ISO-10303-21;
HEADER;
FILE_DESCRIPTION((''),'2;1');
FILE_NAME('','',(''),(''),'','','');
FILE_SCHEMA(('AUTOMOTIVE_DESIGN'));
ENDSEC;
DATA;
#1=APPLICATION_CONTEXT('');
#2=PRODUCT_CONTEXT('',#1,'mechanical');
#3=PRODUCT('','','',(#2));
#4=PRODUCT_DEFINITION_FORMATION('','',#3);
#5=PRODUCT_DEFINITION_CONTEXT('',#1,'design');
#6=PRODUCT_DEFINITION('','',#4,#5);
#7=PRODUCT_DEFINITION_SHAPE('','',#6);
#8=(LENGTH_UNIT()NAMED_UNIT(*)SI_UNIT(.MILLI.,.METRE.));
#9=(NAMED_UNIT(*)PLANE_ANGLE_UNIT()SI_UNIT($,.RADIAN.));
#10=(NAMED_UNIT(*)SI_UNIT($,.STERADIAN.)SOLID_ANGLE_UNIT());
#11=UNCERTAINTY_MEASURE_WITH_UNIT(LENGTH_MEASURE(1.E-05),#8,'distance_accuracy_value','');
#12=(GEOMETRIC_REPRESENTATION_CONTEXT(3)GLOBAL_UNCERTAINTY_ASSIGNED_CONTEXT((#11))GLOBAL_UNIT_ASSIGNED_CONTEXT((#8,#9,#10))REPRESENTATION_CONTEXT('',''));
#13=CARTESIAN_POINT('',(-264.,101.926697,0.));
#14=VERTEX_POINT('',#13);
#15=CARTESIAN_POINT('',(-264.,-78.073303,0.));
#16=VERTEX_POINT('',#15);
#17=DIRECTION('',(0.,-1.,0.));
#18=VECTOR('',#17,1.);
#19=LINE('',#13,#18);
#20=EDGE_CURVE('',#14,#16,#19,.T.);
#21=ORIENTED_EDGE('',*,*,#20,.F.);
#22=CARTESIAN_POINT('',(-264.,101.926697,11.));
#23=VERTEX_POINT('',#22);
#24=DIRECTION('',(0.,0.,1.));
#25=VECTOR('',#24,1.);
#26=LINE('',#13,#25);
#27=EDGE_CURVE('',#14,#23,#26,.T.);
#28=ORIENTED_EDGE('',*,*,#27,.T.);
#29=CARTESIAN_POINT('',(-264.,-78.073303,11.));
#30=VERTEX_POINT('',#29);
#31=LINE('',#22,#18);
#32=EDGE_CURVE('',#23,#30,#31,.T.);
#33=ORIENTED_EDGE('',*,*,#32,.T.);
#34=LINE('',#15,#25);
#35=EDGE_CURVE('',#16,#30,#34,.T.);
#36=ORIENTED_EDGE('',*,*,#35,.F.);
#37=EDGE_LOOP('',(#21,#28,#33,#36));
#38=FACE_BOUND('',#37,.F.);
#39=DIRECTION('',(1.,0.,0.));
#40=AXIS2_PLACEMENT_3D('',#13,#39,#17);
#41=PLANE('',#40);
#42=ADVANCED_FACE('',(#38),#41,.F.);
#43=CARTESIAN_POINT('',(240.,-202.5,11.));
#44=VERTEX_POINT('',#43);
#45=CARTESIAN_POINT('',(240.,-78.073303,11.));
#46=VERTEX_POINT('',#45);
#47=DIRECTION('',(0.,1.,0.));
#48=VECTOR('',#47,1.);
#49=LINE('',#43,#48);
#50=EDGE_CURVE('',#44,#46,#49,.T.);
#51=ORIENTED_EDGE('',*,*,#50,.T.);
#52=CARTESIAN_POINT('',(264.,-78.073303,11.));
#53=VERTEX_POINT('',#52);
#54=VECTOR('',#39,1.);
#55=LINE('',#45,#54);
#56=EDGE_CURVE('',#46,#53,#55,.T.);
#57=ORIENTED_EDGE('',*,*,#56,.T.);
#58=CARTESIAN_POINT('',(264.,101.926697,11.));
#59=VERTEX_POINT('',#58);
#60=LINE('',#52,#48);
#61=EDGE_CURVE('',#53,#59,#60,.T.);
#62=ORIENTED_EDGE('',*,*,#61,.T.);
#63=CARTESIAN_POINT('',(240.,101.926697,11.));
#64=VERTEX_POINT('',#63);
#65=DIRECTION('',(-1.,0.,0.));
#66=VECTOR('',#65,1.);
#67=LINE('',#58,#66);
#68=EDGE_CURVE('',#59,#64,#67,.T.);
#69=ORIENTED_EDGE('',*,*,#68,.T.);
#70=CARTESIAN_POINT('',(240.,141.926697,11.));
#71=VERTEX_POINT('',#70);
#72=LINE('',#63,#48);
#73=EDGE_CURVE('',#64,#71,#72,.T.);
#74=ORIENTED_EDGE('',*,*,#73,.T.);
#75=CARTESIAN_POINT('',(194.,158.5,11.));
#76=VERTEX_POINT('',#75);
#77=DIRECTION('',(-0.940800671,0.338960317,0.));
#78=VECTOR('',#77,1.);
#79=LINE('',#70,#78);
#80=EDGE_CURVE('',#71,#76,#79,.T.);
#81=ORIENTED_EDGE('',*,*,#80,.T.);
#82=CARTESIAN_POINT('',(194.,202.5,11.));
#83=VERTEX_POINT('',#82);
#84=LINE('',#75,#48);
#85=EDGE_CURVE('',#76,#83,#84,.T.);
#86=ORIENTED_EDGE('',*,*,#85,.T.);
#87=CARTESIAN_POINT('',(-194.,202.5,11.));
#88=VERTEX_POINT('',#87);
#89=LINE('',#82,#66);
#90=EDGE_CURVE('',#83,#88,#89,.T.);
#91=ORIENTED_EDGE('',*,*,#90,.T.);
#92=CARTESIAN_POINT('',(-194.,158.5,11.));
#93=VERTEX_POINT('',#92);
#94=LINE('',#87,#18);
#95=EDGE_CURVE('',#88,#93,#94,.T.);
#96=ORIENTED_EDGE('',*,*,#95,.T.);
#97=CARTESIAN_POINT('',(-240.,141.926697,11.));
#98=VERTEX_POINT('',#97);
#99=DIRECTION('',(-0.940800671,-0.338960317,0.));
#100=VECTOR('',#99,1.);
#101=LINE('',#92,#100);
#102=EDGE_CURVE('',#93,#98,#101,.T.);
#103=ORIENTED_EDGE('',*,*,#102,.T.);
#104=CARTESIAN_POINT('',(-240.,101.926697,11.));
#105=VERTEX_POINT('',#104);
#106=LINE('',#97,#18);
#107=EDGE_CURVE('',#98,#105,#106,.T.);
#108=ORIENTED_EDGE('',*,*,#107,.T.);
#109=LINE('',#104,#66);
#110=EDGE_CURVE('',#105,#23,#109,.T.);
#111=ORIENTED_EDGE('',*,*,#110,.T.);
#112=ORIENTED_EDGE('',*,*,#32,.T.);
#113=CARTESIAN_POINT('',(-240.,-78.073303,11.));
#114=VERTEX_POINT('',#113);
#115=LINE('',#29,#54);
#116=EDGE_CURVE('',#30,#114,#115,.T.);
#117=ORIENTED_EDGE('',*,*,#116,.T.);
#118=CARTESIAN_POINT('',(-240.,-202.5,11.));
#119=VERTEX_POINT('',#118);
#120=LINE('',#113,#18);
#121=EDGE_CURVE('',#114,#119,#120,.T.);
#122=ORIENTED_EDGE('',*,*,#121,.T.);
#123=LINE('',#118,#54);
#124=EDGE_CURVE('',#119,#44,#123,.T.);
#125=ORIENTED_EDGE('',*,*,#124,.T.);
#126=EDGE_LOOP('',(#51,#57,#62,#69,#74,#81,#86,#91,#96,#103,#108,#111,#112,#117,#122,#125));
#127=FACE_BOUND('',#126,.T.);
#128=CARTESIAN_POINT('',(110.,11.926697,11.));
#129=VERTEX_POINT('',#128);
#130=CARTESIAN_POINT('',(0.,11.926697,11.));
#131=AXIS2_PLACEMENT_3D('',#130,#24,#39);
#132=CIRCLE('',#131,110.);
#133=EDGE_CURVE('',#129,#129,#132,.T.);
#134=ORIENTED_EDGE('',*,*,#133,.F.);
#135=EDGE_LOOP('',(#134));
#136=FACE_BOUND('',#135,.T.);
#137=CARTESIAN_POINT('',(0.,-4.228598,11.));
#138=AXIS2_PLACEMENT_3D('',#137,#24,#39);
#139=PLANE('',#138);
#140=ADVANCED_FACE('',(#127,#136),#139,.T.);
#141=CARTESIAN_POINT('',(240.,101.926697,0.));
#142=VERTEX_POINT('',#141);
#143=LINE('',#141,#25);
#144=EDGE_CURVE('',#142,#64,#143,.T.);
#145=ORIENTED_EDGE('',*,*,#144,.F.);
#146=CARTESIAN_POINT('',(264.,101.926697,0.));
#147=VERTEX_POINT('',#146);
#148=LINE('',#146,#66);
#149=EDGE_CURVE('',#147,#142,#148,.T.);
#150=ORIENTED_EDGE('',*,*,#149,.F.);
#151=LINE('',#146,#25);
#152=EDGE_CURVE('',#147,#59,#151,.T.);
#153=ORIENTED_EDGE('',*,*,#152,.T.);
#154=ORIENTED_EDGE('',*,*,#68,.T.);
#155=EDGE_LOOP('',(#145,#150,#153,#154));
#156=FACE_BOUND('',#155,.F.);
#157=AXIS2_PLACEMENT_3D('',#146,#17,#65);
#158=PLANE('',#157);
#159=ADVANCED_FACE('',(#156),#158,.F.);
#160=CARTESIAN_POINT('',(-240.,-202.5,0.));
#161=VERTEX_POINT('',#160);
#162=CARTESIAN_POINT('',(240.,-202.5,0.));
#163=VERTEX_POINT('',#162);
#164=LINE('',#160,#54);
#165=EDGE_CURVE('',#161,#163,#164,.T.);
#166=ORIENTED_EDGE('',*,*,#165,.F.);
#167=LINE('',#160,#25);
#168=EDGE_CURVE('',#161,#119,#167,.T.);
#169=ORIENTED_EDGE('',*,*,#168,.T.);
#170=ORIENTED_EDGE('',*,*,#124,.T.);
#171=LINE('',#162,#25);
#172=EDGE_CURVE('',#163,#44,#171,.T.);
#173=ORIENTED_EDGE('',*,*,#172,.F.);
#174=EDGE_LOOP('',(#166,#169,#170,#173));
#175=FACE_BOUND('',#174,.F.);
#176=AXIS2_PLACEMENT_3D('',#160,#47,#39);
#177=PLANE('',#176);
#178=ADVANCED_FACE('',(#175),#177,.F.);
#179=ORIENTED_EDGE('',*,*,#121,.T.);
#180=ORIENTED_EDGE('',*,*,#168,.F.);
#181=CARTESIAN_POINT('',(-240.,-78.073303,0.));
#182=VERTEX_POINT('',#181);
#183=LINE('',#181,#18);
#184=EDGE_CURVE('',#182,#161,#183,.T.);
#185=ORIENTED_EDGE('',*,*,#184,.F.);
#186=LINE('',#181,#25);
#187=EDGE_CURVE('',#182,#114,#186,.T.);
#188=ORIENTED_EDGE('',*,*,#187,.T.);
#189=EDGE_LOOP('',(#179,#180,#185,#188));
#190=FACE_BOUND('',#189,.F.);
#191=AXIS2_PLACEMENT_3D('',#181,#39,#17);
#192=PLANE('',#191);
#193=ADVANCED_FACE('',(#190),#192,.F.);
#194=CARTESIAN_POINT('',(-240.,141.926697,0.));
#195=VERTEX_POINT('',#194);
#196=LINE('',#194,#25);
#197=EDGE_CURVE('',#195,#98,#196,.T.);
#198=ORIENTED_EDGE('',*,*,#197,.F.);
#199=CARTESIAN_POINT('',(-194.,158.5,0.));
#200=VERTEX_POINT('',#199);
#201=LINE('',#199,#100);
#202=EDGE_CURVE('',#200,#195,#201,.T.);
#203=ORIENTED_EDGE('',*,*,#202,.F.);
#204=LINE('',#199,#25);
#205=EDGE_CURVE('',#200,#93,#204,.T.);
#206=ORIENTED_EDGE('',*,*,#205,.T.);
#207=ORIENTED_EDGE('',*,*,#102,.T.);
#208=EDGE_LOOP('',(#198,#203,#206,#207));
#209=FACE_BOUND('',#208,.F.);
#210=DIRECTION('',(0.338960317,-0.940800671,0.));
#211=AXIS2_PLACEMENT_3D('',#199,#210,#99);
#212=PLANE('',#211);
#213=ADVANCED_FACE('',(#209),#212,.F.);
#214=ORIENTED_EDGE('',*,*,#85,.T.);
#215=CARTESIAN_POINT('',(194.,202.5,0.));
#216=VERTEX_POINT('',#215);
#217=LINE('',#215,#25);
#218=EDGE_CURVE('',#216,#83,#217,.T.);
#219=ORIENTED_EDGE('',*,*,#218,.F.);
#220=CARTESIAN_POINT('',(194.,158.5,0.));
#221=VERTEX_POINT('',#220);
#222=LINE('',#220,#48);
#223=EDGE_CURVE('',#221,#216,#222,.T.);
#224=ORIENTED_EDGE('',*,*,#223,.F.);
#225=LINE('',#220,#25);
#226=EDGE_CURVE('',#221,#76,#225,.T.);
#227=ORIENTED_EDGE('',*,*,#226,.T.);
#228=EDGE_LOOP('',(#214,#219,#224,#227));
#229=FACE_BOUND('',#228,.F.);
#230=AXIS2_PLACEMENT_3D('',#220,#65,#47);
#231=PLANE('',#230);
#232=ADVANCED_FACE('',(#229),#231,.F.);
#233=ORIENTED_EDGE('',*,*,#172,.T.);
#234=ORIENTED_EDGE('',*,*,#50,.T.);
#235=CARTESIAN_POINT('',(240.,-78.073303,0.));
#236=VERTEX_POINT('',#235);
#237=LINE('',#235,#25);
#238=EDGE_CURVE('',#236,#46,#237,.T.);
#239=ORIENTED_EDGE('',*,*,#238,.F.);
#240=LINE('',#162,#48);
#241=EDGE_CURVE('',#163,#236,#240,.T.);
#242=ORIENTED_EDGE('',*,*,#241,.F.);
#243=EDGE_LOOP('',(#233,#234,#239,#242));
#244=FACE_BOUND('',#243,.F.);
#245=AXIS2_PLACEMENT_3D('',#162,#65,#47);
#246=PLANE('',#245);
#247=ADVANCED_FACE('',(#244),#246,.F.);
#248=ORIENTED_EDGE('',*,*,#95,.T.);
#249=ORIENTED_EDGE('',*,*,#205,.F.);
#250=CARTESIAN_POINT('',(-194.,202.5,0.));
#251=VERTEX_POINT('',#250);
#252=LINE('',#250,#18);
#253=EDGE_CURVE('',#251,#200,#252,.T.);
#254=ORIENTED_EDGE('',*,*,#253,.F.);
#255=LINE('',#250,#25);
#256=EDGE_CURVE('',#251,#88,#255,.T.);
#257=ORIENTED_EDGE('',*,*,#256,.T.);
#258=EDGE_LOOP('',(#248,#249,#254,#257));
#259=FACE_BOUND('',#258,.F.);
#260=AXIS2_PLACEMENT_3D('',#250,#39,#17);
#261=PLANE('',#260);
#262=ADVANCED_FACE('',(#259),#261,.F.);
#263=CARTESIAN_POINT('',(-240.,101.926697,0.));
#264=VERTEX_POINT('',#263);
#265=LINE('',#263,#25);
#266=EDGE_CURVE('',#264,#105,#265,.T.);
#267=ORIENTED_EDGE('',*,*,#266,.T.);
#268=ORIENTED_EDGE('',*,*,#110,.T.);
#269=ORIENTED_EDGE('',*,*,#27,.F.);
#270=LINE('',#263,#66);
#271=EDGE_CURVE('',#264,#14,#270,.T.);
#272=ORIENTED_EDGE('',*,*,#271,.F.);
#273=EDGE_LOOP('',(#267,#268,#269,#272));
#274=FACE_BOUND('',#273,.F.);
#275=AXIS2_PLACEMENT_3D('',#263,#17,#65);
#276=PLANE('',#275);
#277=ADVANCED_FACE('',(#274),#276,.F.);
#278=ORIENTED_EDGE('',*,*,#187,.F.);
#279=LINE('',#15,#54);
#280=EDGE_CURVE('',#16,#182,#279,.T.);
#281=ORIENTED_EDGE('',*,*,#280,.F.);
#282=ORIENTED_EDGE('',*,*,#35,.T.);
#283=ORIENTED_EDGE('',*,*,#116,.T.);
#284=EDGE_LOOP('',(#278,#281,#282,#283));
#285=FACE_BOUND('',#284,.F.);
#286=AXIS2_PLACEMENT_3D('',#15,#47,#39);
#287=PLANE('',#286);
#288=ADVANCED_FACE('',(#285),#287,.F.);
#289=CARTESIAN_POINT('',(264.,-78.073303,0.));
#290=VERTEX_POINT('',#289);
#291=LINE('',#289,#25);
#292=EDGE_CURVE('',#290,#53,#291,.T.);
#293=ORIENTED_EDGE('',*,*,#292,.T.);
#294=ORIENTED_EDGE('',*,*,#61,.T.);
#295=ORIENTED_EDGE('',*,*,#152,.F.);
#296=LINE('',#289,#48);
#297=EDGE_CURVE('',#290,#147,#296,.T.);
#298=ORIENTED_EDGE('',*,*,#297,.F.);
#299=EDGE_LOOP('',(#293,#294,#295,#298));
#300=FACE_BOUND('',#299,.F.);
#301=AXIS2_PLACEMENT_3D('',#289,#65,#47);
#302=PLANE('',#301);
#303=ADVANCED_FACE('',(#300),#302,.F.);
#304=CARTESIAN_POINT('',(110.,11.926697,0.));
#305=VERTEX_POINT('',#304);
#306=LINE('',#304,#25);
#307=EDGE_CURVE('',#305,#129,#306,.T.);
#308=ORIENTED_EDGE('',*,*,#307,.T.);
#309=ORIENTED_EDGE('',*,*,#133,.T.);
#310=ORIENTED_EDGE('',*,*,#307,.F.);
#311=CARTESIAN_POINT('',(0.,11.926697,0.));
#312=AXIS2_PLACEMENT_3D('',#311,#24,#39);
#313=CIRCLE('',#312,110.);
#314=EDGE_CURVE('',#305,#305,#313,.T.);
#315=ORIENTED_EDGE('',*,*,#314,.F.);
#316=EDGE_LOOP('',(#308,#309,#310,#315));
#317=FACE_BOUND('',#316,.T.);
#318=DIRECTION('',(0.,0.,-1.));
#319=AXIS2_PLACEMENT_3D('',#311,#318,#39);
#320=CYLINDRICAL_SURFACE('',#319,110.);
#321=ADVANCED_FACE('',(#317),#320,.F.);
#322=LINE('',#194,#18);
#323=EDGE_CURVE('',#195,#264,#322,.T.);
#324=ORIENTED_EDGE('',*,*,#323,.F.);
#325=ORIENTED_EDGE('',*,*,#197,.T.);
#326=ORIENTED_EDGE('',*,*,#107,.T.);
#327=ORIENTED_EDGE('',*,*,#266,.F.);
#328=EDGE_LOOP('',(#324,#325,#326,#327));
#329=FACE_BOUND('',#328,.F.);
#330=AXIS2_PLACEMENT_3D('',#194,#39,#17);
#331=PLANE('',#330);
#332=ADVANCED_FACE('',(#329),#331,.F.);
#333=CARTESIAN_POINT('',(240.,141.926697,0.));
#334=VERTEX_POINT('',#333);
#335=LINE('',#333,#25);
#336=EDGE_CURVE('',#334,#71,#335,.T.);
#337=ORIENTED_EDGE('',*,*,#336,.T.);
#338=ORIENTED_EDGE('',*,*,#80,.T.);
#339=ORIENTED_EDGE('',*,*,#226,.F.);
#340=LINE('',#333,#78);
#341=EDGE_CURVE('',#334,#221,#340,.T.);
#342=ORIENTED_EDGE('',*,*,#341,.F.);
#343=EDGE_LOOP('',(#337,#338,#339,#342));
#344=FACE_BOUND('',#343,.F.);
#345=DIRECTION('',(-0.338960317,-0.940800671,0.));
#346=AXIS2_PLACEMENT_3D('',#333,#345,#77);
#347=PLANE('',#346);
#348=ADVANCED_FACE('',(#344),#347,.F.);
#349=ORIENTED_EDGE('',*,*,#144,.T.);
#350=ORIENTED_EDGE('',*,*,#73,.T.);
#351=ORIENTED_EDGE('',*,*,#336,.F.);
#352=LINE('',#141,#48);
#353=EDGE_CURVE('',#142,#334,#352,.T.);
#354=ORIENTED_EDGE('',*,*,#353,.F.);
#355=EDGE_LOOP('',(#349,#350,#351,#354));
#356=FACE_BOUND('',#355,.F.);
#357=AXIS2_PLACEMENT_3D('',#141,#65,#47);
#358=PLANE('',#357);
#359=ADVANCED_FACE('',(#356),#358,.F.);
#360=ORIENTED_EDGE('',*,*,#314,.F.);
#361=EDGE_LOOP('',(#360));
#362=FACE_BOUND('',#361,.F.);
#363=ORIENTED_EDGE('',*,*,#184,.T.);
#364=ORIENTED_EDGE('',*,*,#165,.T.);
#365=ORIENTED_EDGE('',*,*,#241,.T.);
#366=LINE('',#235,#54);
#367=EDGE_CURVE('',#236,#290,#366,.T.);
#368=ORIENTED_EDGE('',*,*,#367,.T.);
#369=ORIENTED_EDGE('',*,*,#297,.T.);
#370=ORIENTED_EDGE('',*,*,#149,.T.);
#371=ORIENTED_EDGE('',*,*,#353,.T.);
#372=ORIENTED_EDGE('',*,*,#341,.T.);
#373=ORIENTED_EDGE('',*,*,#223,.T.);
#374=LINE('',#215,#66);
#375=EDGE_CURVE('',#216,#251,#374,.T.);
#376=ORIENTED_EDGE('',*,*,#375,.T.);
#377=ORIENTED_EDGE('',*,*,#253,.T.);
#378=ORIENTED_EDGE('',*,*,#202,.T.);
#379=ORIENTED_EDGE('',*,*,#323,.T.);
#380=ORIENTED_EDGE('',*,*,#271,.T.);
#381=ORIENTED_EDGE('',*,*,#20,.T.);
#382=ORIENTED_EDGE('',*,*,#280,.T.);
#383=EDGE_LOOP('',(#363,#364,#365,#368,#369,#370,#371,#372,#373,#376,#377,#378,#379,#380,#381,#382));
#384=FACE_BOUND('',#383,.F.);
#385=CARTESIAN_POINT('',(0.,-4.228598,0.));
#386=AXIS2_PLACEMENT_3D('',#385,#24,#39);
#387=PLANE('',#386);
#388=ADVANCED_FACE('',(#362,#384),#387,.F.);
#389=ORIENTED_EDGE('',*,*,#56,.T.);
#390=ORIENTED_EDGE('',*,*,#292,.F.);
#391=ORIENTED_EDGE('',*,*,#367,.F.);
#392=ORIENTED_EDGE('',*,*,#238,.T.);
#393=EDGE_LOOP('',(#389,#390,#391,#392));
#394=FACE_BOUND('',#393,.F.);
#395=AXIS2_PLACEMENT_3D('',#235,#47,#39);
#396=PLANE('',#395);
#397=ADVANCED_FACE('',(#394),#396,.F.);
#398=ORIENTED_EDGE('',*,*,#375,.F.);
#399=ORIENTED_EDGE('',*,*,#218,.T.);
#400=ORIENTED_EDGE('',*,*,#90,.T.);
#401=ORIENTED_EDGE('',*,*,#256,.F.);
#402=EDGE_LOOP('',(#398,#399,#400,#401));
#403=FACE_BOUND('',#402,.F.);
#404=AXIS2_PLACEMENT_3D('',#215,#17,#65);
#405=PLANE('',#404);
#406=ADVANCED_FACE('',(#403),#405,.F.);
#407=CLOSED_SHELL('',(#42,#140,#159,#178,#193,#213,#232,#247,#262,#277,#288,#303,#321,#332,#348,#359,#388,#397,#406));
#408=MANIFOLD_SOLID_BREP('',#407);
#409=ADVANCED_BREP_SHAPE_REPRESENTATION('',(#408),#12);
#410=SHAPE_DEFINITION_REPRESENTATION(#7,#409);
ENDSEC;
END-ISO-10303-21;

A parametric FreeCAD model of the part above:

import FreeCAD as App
import Part
import Sketcher


def add_polygon(sketch, points):
    """Adds a closed chain of lines whose ends are joined by coincident constraints."""
    first, n = sketch.GeometryCount, len(points)
    for a, b in zip(points, points[1:] + points[:1]):
        sketch.addGeometry(Part.LineSegment(App.Vector(*a, 0), App.Vector(*b, 0)), False)
    for i in range(n):
        sketch.addConstraint(Sketcher.Constraint("Coincident", first + i, 2, first + (i + 1) % n, 1))

doc = App.newDocument("Part")
params = doc.addObject("Spreadsheet::Sheet", "Params")
for row, (alias, value) in enumerate([
    ("sketch1_diameter", "220 mm"),
    ("sketch1_width", "24 mm"),
    ("sketch1_width2", "480 mm"),
    ("sketch1_width3", "388 mm"),
    ("sketch1_height", "44 mm"),
    ("pad1_length", "11 mm"),
], start=1):
    params.set(f"A{row}", alias)
    params.set(f"B{row}", "=" + value)
    params.setAlias(f"B{row}", alias)

body = doc.addObject("PartDesign::Body", "Body")

# Sketch on XY plane
sketch1 = body.newObject("Sketcher::SketchObject", "Sketch")
sketch1.AttachmentSupport = (doc.getObject("XY_Plane"), [""])
sketch1.MapMode = "FlatFace"
add_polygon(sketch1, [(-194, 202), (-194, 158), (-240, 142), (-240, 102), (-264, 102), (-264, -78), (-240, -78), (-240, -202), (240, -202), (240, -78), (264, -78), (264, 102), (240, 102), (240, 142), (194, 158), (194, 202)])  # lines 0-15
sketch1.addGeometry(Part.Circle(App.Vector(0, 12, 0), App.Vector(0, 0, 1), 110), False)  # 16
sketch1.addConstraint([
    Sketcher.Constraint("Vertical", 0),
    Sketcher.Constraint("Vertical", 2),
    Sketcher.Constraint("Horizontal", 3),
    Sketcher.Constraint("Vertical", 4),
    Sketcher.Constraint("Horizontal", 5),
    Sketcher.Constraint("Vertical", 6),
    Sketcher.Constraint("Horizontal", 7),
    Sketcher.Constraint("Vertical", 8),
    Sketcher.Constraint("Horizontal", 9),
    Sketcher.Constraint("Vertical", 10),
    Sketcher.Constraint("Horizontal", 11),
    Sketcher.Constraint("Vertical", 12),
    Sketcher.Constraint("Vertical", 14),
    Sketcher.Constraint("Horizontal", 15),
    Sketcher.Constraint("Symmetric", 5, 2, 8, 2, -2),
    Sketcher.Constraint("Symmetric", 3, 2, 10, 2, -2),
    Sketcher.Constraint("Symmetric", 1, 2, 12, 2, -2),
    Sketcher.Constraint("Symmetric", 0, 2, 13, 2, -2),
    Sketcher.Constraint("PointOnObject", 16, 3, -2),
    Sketcher.Constraint("Vertical", 2, 2, 5, 2),
    Sketcher.Constraint("Diameter", 16, 220.0),
    Sketcher.Constraint("DistanceX", 3, 2, 3, 1, 24.0),
    Sketcher.Constraint("DistanceX", 7, 1, 7, 2, 480.0),
    Sketcher.Constraint("DistanceX", 15, 2, 15, 1, 388.0),
    Sketcher.Constraint("DistanceY", 0, 2, 0, 1, 44.0),
    Sketcher.Constraint("DistanceY", 2, 2, 2, 1, 40.0),
    Sketcher.Constraint("DistanceY", 4, 2, 4, 1, 180.0),
    Sketcher.Constraint("DistanceY", 16, 3, 1, 2, 130.0),
    Sketcher.Constraint("DistanceY", 7, 2, 0, 2, 361.0),
    Sketcher.Constraint("DistanceY", -1, 1, 0, 2, 158.5),
    Sketcher.Constraint("DistanceY", 6, 2, 6, 1, 124.426697),
])
sketch1.setExpression("Constraints[36]", "Params.sketch1_diameter")
sketch1.setExpression("Constraints[37]", "Params.sketch1_width")
sketch1.setExpression("Constraints[38]", "Params.sketch1_width2")
sketch1.setExpression("Constraints[39]", "Params.sketch1_width3")
sketch1.setExpression("Constraints[40]", "Params.sketch1_height")
pad1 = body.newObject("PartDesign::Pad", "Pad")
pad1.Profile = sketch1
pad1.setExpression("Length", "Params.pad1_length")

doc.recompute()
